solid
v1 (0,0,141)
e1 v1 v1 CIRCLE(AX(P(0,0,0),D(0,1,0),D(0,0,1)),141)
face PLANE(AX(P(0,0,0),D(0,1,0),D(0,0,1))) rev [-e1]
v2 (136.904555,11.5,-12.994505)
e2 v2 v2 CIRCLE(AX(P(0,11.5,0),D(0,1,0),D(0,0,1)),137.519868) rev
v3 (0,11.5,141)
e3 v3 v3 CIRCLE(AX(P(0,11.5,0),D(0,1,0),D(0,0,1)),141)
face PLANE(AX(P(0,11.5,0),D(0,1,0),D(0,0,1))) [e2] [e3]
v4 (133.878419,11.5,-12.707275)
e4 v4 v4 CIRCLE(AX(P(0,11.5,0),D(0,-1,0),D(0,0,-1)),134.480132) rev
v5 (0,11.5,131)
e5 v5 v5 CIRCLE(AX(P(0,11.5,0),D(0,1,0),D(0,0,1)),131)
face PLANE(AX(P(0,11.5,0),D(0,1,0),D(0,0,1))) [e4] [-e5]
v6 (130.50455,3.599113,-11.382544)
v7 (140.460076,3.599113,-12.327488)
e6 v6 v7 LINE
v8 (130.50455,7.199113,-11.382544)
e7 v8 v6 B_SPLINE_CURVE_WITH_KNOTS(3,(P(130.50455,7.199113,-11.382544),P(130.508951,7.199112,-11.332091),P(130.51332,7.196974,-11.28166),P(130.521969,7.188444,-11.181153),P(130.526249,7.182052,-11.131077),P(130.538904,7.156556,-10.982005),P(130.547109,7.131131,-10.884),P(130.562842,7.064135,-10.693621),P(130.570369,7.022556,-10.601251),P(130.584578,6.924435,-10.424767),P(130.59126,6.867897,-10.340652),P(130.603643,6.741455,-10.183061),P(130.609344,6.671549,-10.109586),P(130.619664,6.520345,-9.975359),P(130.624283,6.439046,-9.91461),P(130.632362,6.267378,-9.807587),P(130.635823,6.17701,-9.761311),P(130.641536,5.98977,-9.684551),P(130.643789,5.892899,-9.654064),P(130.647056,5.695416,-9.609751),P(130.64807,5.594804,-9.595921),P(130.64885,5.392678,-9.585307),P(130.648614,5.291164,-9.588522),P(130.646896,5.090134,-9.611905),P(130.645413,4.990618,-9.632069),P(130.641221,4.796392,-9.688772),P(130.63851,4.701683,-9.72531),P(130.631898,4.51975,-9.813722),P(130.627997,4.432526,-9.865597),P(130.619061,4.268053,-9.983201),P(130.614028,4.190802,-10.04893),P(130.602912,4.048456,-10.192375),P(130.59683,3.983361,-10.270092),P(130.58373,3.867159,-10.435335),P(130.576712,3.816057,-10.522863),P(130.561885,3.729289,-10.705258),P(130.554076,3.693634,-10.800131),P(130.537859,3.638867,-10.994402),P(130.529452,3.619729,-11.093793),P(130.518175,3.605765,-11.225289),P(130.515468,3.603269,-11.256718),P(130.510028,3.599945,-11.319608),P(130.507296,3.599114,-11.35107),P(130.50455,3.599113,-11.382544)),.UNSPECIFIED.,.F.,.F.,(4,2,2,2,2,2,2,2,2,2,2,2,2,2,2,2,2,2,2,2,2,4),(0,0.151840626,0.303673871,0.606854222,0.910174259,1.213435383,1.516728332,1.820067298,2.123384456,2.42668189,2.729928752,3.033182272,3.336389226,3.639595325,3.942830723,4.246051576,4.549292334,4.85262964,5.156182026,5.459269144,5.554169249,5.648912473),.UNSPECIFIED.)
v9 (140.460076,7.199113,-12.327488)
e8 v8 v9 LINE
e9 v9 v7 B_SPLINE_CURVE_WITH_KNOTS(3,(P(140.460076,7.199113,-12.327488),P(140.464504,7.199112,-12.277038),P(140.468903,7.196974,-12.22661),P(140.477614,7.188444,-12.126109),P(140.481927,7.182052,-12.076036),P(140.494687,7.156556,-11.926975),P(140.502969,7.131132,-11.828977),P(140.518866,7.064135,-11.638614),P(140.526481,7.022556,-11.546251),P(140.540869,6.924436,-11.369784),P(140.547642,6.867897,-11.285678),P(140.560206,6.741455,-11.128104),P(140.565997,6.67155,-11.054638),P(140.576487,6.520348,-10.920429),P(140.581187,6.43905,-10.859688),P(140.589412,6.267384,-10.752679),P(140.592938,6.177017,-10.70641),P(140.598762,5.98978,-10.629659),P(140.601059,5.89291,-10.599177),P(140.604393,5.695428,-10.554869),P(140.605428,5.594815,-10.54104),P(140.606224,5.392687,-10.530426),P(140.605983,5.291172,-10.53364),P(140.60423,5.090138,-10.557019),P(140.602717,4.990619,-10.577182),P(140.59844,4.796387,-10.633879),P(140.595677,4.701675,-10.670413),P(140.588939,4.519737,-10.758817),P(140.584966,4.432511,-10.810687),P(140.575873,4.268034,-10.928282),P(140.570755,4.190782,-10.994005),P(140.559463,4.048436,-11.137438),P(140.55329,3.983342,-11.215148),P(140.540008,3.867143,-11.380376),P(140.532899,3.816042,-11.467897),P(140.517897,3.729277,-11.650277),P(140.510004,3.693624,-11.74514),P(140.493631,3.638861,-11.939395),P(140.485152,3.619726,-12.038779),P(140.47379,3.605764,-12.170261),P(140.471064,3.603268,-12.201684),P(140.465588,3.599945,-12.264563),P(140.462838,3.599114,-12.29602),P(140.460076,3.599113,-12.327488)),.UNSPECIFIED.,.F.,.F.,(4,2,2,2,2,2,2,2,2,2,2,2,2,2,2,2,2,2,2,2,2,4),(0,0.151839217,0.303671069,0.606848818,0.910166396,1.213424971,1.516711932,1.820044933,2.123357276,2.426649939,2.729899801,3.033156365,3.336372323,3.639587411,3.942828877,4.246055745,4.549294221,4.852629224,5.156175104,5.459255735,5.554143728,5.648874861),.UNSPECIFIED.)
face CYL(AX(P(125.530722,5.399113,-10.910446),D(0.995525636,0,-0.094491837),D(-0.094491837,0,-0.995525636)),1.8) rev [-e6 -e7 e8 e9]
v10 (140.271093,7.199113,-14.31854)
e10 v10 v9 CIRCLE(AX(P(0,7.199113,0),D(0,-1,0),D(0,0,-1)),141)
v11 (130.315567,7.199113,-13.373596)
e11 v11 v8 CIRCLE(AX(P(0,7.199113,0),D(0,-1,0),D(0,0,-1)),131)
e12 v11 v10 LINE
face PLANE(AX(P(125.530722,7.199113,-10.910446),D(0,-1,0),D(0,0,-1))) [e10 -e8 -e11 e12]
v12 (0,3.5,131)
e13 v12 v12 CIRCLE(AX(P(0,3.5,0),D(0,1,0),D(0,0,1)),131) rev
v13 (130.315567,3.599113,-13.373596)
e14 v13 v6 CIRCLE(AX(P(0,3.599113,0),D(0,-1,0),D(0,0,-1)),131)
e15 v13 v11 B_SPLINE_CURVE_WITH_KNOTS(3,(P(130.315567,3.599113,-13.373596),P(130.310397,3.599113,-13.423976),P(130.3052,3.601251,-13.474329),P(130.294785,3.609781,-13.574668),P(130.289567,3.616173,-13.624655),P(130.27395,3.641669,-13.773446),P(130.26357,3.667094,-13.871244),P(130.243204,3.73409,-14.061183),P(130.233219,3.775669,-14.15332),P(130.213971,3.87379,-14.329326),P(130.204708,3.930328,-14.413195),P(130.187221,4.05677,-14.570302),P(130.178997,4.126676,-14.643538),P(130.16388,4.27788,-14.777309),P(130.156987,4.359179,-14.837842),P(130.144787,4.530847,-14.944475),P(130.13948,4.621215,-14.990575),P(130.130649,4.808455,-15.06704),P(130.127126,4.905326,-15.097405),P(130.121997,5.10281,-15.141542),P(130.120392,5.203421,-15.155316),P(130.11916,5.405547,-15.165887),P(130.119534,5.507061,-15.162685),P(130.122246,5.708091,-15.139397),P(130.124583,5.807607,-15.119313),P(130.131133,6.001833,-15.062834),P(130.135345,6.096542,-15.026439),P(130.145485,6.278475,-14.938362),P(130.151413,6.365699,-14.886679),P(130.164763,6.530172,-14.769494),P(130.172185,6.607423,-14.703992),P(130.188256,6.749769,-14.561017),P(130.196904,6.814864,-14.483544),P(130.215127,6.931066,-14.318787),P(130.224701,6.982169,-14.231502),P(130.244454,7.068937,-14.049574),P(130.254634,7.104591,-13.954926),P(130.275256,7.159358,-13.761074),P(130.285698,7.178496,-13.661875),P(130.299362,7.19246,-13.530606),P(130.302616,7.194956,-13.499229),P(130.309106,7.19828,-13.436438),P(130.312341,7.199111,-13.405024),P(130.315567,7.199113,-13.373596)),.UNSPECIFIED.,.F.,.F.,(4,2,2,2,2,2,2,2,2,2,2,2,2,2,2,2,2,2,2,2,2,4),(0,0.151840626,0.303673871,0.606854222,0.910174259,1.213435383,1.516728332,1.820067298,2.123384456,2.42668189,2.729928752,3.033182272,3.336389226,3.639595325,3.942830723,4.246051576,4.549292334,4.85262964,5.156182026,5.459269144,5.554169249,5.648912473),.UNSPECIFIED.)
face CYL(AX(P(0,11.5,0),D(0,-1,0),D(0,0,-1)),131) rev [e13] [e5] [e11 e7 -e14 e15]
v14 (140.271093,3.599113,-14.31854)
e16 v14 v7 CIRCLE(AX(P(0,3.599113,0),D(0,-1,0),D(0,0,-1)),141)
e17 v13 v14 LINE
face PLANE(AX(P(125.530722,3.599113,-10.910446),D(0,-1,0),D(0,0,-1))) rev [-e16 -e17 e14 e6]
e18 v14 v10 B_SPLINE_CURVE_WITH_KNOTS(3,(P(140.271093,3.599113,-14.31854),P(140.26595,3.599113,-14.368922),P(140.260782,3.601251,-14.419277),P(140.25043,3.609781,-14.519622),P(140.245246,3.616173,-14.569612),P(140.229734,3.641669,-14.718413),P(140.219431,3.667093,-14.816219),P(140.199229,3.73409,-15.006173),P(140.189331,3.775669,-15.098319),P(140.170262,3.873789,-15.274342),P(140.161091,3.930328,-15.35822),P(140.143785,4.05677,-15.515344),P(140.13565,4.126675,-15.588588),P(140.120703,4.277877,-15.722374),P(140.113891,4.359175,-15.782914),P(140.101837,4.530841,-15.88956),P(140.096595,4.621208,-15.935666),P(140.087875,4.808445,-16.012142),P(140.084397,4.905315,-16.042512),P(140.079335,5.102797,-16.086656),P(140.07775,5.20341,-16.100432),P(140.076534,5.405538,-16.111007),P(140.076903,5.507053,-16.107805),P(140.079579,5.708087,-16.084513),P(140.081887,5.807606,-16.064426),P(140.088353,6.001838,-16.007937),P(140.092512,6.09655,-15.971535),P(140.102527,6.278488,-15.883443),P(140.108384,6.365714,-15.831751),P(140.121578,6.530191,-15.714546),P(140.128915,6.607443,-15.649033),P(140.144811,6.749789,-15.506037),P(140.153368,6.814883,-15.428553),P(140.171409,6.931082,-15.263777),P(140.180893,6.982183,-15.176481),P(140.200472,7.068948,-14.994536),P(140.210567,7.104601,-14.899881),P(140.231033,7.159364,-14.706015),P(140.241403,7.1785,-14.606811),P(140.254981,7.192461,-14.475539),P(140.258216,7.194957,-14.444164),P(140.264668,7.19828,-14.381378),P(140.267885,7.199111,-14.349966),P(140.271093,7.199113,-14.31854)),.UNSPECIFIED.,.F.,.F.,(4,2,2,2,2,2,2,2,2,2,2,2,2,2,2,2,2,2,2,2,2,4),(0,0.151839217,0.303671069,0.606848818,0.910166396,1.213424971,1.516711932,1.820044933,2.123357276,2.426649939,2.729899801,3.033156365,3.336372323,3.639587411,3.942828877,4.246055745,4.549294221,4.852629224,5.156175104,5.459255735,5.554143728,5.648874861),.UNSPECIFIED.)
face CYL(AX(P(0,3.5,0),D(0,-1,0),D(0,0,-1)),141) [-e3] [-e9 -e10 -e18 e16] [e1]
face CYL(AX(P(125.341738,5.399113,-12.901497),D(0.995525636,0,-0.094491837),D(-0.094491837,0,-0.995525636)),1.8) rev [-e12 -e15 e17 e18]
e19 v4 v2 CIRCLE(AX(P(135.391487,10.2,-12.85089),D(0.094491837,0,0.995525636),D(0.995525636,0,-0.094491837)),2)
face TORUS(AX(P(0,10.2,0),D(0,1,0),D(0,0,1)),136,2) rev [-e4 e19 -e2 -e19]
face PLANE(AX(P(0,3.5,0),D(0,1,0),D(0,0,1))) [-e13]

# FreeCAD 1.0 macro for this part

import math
import FreeCAD as App
import Part
import Sketcher

V = App.Vector

doc = App.newDocument("Part")
body = doc.addObject("PartDesign::Body", "Body")

# Sketch on XZ plane
sketch1 = body.newObject("Sketcher::SketchObject", "Sketch")
sketch1.AttachmentSupport = (doc.getObject("XZ_Plane"), [""])
sketch1.MapMode = "FlatFace"
sketch1.addGeometry(Part.Circle(V(0, 0, 0), V(0, 0, 1), 141), False)
sketch1.addConstraint([
    Sketcher.Constraint("Coincident", 0, 3, -1, 1),
    Sketcher.Constraint("Diameter", 0, 282.0),
])
pad1 = body.newObject("PartDesign::Pad", "Pad")
pad1.Profile = sketch1
pad1.Length = 3.5
pad1.Reversed = True

# Sketch on XZ plane
sketch2 = body.newObject("Sketcher::SketchObject", "Sketch001")
sketch2.AttachmentSupport = (doc.getObject("XZ_Plane"), [""])
sketch2.MapMode = "FlatFace"
sketch2.AttachmentOffset = App.Placement(V(0, 0, -3.5), App.Rotation())
sketch2.addGeometry([
    Part.Circle(V(0, 0, 0), V(0, 0, 1), 141),
    Part.Circle(V(0, 0, 0), V(0, 0, 1), 131),
], False)
sketch2.addConstraint([
    Sketcher.Constraint("Coincident", 0, 3, -1, 1),
    Sketcher.Constraint("Coincident", 1, 3, -1, 1),
    Sketcher.Constraint("Diameter", 0, 282.0),
    Sketcher.Constraint("Diameter", 1, 262.0),
])
pad2 = body.newObject("PartDesign::Pad", "Pad001")
pad2.Profile = sketch2
pad2.Length = 8
pad2.Reversed = True

# Sketch on an angled plane
sketch3 = body.newObject("Sketcher::SketchObject", "Sketch002")
sketch3.Placement = App.Placement(V(0, 0, 0), App.Rotation(V(0.995525636, 0, -0.094491837), V(0, 0.999999999, 0), V(0.094491837, 0, 0.995525636), "ZXY"))
sketch3.addGeometry(Part.Circle(V(136, 10.2, 0), V(0, 0, 1), 2), False)
sketch3.addConstraint([
    Sketcher.Constraint("Diameter", 0, 4.0),
    Sketcher.Constraint("DistanceX", -1, 1, 0, 3, 136.0),
    Sketcher.Constraint("DistanceY", -1, 1, 0, 3, 10.2),
])

# Sketch on XZ plane
sketch4 = body.newObject("Sketcher::SketchObject", "Sketch003")
sketch4.AttachmentSupport = (doc.getObject("XZ_Plane"), [""])
sketch4.MapMode = "FlatFace"
sketch4.AttachmentOffset = App.Placement(V(0, 0, -11.5), App.Rotation())
sketch4.addGeometry(Part.Circle(V(0, 0, 0), V(0, 0, 1), 136), False)
sketch4.addConstraint([
    Sketcher.Constraint("Coincident", 0, 3, -1, 1),
    Sketcher.Constraint("Diameter", 0, 272.0),
])
doc.recompute()

subtractivepipe = body.newObject("PartDesign::SubtractivePipe", "SubtractivePipe")
subtractivepipe.Profile = sketch3
subtractivepipe.Spine = (sketch4, ["Edge1"])

# Sketch on an angled plane
sketch5 = body.newObject("Sketcher::SketchObject", "Sketch004")
sketch5.Placement = App.Placement(V(130.413858, 0, -12.378431), App.Rotation(V(0.094491837, 0, 0.995525636), V(0, 0.999999999, 0), V(-0.995525636, 0, 0.094491837), "ZXY"))
sketch5.addGeometry([
    Part.LineSegment(V(-1, 3.6, 0), V(1, 3.6, 0)),
    Part.ArcOfCircle(Part.Circle(V(1, 5.4, 0), V(0, 0, 1), 1.8), math.radians(-90), math.radians(90)),
    Part.LineSegment(V(1, 7.2, 0), V(-1, 7.2, 0)),
    Part.ArcOfCircle(Part.Circle(V(-1, 5.4, 0), V(0, 0, 1), 1.8), math.radians(90), math.radians(270)),
], False)
sketch5.addConstraint([
    Sketcher.Constraint("Tangent", 0, 2, 1, 1),
    Sketcher.Constraint("Tangent", 1, 2, 2, 1),
    Sketcher.Constraint("Tangent", 2, 2, 3, 1),
    Sketcher.Constraint("Tangent", 3, 2, 0, 1),
    Sketcher.Constraint("Horizontal", 0),
    Sketcher.Constraint("Horizontal", 2),
    Sketcher.Constraint("Radius", 1, 1.8),
    Sketcher.Constraint("DistanceX", 0, 1, 0, 2, 2.0),
    Sketcher.Constraint("DistanceX", -1, 1, 1, 3, 1.0),
    Sketcher.Constraint("DistanceY", -1, 1, 1, 3, 5.399113),
])
pocket1 = body.newObject("PartDesign::Pocket", "Pocket")
pocket1.Profile = sketch5
pocket1.Type = "TwoLengths"
pocket1.Length = 5
pocket1.Length2 = 15
pocket1.Reversed = True

doc.recompute()
